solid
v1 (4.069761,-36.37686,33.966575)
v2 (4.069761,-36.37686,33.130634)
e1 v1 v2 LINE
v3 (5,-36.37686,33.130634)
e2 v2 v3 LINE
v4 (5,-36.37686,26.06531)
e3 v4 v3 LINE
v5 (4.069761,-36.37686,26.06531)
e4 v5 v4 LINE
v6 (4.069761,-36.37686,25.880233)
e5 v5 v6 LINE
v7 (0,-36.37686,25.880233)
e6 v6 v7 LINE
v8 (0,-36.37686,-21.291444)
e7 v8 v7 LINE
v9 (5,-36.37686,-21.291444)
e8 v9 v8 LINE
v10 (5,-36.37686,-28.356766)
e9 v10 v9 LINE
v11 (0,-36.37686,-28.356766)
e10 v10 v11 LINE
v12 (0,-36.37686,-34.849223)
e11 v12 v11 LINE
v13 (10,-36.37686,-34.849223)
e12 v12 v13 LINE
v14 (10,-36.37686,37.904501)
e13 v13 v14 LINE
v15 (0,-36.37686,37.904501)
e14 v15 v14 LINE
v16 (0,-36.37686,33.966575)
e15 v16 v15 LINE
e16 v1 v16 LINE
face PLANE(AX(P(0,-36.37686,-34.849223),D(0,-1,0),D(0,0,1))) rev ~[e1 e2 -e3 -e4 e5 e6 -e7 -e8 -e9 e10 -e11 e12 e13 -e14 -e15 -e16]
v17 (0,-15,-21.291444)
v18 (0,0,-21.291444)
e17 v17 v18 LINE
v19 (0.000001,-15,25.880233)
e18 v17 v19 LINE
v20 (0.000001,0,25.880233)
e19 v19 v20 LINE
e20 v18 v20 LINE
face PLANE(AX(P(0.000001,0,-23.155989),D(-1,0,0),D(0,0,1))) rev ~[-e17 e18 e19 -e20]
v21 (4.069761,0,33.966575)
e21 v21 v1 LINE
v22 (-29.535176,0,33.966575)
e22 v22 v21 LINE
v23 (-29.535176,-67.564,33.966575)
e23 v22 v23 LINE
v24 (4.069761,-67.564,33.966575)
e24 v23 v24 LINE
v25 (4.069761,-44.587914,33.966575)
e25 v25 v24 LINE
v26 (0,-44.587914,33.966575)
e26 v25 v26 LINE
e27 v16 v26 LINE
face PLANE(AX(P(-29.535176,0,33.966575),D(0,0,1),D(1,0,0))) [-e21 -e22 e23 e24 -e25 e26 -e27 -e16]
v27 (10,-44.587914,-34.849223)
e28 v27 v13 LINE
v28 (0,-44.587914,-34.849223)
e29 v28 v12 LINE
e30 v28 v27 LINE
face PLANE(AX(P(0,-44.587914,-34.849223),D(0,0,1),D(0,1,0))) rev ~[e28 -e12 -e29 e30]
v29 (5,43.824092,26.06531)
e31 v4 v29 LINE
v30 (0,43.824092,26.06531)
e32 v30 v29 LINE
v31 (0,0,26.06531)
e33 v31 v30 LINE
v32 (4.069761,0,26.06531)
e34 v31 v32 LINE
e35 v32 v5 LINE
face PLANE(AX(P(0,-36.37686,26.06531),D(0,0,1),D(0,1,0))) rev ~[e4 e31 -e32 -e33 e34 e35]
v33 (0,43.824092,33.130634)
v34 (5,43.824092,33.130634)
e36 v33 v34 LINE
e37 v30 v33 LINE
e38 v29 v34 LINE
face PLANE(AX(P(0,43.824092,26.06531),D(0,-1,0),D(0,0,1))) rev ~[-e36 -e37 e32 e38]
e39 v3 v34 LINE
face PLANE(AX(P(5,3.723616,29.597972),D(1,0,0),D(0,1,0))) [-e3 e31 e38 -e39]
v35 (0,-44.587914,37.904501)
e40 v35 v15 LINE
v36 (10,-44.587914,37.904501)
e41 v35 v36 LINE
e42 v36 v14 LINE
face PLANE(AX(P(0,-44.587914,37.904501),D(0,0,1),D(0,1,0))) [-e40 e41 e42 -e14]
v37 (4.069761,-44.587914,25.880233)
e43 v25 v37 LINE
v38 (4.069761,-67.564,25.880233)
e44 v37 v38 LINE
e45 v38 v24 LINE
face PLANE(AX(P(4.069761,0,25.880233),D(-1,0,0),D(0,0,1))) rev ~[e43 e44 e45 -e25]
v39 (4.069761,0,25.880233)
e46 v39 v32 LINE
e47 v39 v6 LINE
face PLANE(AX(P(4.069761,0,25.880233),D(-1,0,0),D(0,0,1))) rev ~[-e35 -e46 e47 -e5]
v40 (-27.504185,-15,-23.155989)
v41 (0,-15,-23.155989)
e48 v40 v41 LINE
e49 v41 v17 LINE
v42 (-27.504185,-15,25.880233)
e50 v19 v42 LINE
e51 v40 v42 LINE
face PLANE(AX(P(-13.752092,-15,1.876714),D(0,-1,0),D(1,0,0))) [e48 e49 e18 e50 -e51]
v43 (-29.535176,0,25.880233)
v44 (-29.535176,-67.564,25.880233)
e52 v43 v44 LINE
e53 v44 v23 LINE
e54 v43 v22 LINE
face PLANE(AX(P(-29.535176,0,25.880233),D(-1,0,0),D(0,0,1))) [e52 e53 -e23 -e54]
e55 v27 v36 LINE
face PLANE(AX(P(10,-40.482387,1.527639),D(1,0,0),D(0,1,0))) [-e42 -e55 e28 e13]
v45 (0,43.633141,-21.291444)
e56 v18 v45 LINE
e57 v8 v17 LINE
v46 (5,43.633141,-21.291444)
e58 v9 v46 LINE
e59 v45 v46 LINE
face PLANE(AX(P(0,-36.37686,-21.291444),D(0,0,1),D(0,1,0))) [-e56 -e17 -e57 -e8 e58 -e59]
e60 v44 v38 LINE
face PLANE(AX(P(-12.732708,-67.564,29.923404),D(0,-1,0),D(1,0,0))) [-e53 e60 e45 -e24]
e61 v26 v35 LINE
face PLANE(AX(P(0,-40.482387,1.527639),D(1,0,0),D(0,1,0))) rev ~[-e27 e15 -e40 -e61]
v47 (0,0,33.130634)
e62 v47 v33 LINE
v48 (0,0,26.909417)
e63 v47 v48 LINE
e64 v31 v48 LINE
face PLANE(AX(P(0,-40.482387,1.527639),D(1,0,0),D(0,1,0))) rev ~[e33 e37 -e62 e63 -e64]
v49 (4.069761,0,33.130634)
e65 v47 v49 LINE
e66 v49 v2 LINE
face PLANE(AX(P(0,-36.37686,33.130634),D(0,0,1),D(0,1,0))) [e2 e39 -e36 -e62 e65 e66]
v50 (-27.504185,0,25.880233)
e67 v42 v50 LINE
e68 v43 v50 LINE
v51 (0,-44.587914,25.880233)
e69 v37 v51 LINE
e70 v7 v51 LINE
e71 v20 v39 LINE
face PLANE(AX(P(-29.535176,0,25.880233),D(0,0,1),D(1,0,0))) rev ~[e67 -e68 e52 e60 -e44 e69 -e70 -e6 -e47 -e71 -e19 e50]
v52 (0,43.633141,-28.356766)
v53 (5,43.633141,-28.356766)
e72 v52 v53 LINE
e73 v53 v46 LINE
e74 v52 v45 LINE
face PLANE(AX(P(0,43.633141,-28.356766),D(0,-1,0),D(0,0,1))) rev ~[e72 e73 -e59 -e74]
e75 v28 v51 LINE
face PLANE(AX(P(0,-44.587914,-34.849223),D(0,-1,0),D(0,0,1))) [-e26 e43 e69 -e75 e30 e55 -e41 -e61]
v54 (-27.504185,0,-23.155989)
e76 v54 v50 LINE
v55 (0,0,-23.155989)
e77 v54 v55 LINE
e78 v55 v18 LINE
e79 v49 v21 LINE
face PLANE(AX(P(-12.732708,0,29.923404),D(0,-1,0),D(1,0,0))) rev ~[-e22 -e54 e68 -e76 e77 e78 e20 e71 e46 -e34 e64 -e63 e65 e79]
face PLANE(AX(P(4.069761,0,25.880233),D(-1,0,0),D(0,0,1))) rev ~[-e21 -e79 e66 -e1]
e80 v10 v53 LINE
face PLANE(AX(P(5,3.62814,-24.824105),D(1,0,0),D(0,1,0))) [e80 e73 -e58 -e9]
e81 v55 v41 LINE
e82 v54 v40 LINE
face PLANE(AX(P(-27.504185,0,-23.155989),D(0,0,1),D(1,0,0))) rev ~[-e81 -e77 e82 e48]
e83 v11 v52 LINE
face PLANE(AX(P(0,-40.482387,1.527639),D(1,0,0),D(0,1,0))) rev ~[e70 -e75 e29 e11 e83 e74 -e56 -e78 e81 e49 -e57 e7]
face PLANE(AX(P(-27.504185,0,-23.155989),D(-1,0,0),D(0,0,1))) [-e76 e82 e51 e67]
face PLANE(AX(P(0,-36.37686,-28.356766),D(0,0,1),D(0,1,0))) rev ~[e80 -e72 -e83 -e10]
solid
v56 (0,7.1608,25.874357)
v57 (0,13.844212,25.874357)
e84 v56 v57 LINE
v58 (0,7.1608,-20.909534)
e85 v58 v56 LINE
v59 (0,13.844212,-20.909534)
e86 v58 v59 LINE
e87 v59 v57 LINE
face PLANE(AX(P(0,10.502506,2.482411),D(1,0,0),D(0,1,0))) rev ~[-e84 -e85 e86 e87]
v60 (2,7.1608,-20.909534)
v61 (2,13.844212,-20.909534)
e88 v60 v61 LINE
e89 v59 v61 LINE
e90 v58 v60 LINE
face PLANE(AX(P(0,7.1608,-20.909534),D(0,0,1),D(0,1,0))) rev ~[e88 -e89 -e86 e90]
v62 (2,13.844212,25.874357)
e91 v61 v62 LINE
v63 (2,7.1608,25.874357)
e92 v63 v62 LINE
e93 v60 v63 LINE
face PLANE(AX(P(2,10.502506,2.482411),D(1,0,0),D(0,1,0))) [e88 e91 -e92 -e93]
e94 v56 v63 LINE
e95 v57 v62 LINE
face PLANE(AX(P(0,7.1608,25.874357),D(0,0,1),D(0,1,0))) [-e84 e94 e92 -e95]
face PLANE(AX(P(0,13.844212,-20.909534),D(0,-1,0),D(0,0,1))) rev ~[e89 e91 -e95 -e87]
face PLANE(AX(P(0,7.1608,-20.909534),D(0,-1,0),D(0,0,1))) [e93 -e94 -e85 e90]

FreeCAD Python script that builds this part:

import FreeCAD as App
import Part
import Sketcher

V = App.Vector
Q = App.Units.Quantity

doc = App.newDocument("Part")
params = doc.addObject("Spreadsheet::Sheet", "Params")
for row, (alias, value) in enumerate([
    ("pad1_length", "10 mm"),
    ("pad2_length", "5 mm"),
    ("sketch3_width", "80.010001 mm"),
    ("pad3_length", "5 mm"),
    ("pad4_length", "15 mm"),
    ("pad5_length", "67.564 mm"),
    ("pad6_length", "2 mm"),
], start=1):
    params.set(f"A{row}", alias)
    params.set(f"B{row}", "=" + value)
    params.setAlias(f"B{row}", alias)

body = doc.addObject("PartDesign::Body", "Body")

# Sketch on YZ plane
sketch1 = doc.addObject("Sketcher::SketchObject", "Sketch")
body.addObject(sketch1)
sketch1.AttachmentSupport = (doc.YZ_Plane, [""])
sketch1.MapMode = "FlatFace"
sketch1.addGeometry([
    Part.LineSegment(V(-44.587914, 37.904501, 0), V(-44.587914, -34.849223, 0)),
    Part.LineSegment(V(-44.587914, -34.849223, 0), V(-36.37686, -34.849223, 0)),
    Part.LineSegment(V(-36.37686, -34.849223, 0), V(-36.37686, 37.904501, 0)),
    Part.LineSegment(V(-36.37686, 37.904501, 0), V(-44.587914, 37.904501, 0)),
], False)
sketch1.addConstraint([
    Sketcher.Constraint("Coincident", 0, 2, 1, 1),
    Sketcher.Constraint("Coincident", 1, 2, 2, 1),
    Sketcher.Constraint("Coincident", 2, 2, 3, 1),
    Sketcher.Constraint("Coincident", 3, 2, 0, 1),
    Sketcher.Constraint("Vertical", 0),
    Sketcher.Constraint("Horizontal", 1),
    Sketcher.Constraint("Vertical", 2),
    Sketcher.Constraint("Horizontal", 3),
    Sketcher.Constraint("DistanceY", -1, 1, 2, 2, Q("37.904501 mm")),
    Sketcher.Constraint("DistanceX", 1, 1, 1, 2, Q("8.211054 mm")),
    Sketcher.Constraint("DistanceY", 0, 2, 0, 1, Q("72.753724 mm")),
    Sketcher.Constraint("DistanceX", 1, 2, -1, 1, Q("36.37686 mm")),
])
pad1 = doc.addObject("PartDesign::Pad", "Pad")
body.addObject(pad1)
pad1.Profile = sketch1
pad1.setExpression("Length", "Params.pad1_length")

# Sketch on YZ plane
sketch2 = doc.addObject("Sketcher::SketchObject", "Sketch001")
body.addObject(sketch2)
sketch2.AttachmentSupport = (doc.YZ_Plane, [""])
sketch2.MapMode = "FlatFace"
sketch2.addGeometry([
    Part.LineSegment(V(-36.37686, 33.130634, 0), V(-36.37686, 26.06531, 0)),
    Part.LineSegment(V(-36.37686, 26.06531, 0), V(43.824092, 26.06531, 0)),
    Part.LineSegment(V(43.824092, 26.06531, 0), V(43.824092, 33.130634, 0)),
    Part.LineSegment(V(43.824092, 33.130634, 0), V(-36.37686, 33.130634, 0)),
], False)
sketch2.addConstraint([
    Sketcher.Constraint("Coincident", 0, 2, 1, 1),
    Sketcher.Constraint("Coincident", 1, 2, 2, 1),
    Sketcher.Constraint("Coincident", 2, 2, 3, 1),
    Sketcher.Constraint("Coincident", 3, 2, 0, 1),
    Sketcher.Constraint("Vertical", 0),
    Sketcher.Constraint("Horizontal", 1),
    Sketcher.Constraint("Vertical", 2),
    Sketcher.Constraint("Horizontal", 3),
    Sketcher.Constraint("DistanceX", 1, 1, 1, 2, Q("80.200952 mm")),
    Sketcher.Constraint("DistanceY", 0, 2, 0, 1, Q("7.065325 mm")),
    Sketcher.Constraint("DistanceX", 0, 2, -1, 1, Q("36.37686 mm")),
    Sketcher.Constraint("DistanceY", -1, 1, 0, 2, Q("26.06531 mm")),
])
pad2 = doc.addObject("PartDesign::Pad", "Pad001")
body.addObject(pad2)
pad2.Profile = sketch2
pad2.setExpression("Length", "Params.pad2_length")

# Sketch on YZ plane
sketch3 = doc.addObject("Sketcher::SketchObject", "Sketch002")
body.addObject(sketch3)
sketch3.AttachmentSupport = (doc.YZ_Plane, [""])
sketch3.MapMode = "FlatFace"
sketch3.addGeometry([
    Part.LineSegment(V(-36.37686, -21.291444, 0), V(-36.37686, -28.356766, 0)),
    Part.LineSegment(V(-36.37686, -28.356766, 0), V(43.633141, -28.356766, 0)),
    Part.LineSegment(V(43.633141, -28.356766, 0), V(43.633141, -21.291444, 0)),
    Part.LineSegment(V(43.633141, -21.291444, 0), V(-36.37686, -21.291444, 0)),
], False)
sketch3.addConstraint([
    Sketcher.Constraint("Coincident", 0, 2, 1, 1),
    Sketcher.Constraint("Coincident", 1, 2, 2, 1),
    Sketcher.Constraint("Coincident", 2, 2, 3, 1),
    Sketcher.Constraint("Coincident", 3, 2, 0, 1),
    Sketcher.Constraint("Vertical", 0),
    Sketcher.Constraint("Horizontal", 1),
    Sketcher.Constraint("Vertical", 2),
    Sketcher.Constraint("Horizontal", 3),
    Sketcher.Constraint("DistanceX", 1, 1, 1, 2, Q("80.010001 mm")),
    Sketcher.Constraint("DistanceY", 0, 2, 0, 1, Q("7.065322 mm")),
    Sketcher.Constraint("DistanceX", 0, 2, -1, 1, Q("36.37686 mm")),
    Sketcher.Constraint("DistanceY", 0, 2, -1, 1, Q("28.356766 mm")),
])
sketch3.setExpression("Constraints[8]", "Params.sketch3_width")
pad3 = doc.addObject("PartDesign::Pad", "Pad002")
body.addObject(pad3)
pad3.Profile = sketch3
pad3.setExpression("Length", "Params.pad3_length")

# Sketch on XZ plane
sketch4 = doc.addObject("Sketcher::SketchObject", "Sketch003")
body.addObject(sketch4)
sketch4.AttachmentSupport = (doc.XZ_Plane, [""])
sketch4.MapMode = "FlatFace"
sketch4.addGeometry([
    Part.LineSegment(V(-27.504185, 26.909417, 0), V(-27.504185, -23.155989, 0)),
    Part.LineSegment(V(-27.504185, -23.155989, 0), V(0, -23.155989, 0)),
    Part.LineSegment(V(0, -23.155989, 0), V(0, 26.909417, 0)),
    Part.LineSegment(V(0, 26.909417, 0), V(-27.504185, 26.909417, 0)),
], False)
sketch4.addConstraint([
    Sketcher.Constraint("Coincident", 0, 2, 1, 1),
    Sketcher.Constraint("Coincident", 1, 2, 2, 1),
    Sketcher.Constraint("Coincident", 2, 2, 3, 1),
    Sketcher.Constraint("Coincident", 3, 2, 0, 1),
    Sketcher.Constraint("Vertical", 0),
    Sketcher.Constraint("Horizontal", 1),
    Sketcher.Constraint("Vertical", 2),
    Sketcher.Constraint("Horizontal", 3),
    Sketcher.Constraint("PointOnObject", 1, 2, -2),
    Sketcher.Constraint("DistanceX", 1, 1, 1, 2, Q("27.504185 mm")),
    Sketcher.Constraint("DistanceY", 0, 2, 0, 1, Q("50.065406 mm")),
    Sketcher.Constraint("DistanceY", 0, 2, -1, 1, Q("23.155989 mm")),
])
pad4 = doc.addObject("PartDesign::Pad", "Pad003")
body.addObject(pad4)
pad4.Profile = sketch4
pad4.setExpression("Length", "Params.pad4_length")

# Sketch on XZ plane
sketch5 = doc.addObject("Sketcher::SketchObject", "Sketch004")
body.addObject(sketch5)
sketch5.AttachmentSupport = (doc.XZ_Plane, [""])
sketch5.MapMode = "FlatFace"
sketch5.addGeometry([
    Part.LineSegment(V(-29.535176, 33.966575, 0), V(-29.535176, 25.880233, 0)),
    Part.LineSegment(V(-29.535176, 25.880233, 0), V(4.069761, 25.880233, 0)),
    Part.LineSegment(V(4.069761, 25.880233, 0), V(4.069761, 33.966575, 0)),
    Part.LineSegment(V(4.069761, 33.966575, 0), V(-29.535176, 33.966575, 0)),
], False)
sketch5.addConstraint([
    Sketcher.Constraint("Coincident", 0, 2, 1, 1),
    Sketcher.Constraint("Coincident", 1, 2, 2, 1),
    Sketcher.Constraint("Coincident", 2, 2, 3, 1),
    Sketcher.Constraint("Coincident", 3, 2, 0, 1),
    Sketcher.Constraint("Vertical", 0),
    Sketcher.Constraint("Horizontal", 1),
    Sketcher.Constraint("Vertical", 2),
    Sketcher.Constraint("Horizontal", 3),
    Sketcher.Constraint("DistanceY", 0, 2, 0, 1, Q("8.086341 mm")),
    Sketcher.Constraint("DistanceX", 1, 1, 1, 2, Q("33.604937 mm")),
    Sketcher.Constraint("DistanceX", -1, 1, 1, 2, Q("4.069761 mm")),
    Sketcher.Constraint("DistanceY", -1, 1, 0, 2, Q("25.880233 mm")),
])
pad5 = doc.addObject("PartDesign::Pad", "Pad004")
body.addObject(pad5)
pad5.Profile = sketch5
pad5.setExpression("Length", "Params.pad5_length")
body2 = doc.addObject("PartDesign::Body", "Body001")

# Sketch on YZ plane
sketch6 = doc.addObject("Sketcher::SketchObject", "Sketch005")
body2.addObject(sketch6)
sketch6.AttachmentSupport = (doc.getObject("YZ_Plane001"), [""])
sketch6.MapMode = "FlatFace"
sketch6.addGeometry([
    Part.LineSegment(V(7.1608, 25.874357, 0), V(7.1608, -20.909534, 0)),
    Part.LineSegment(V(7.1608, -20.909534, 0), V(13.844212, -20.909534, 0)),
    Part.LineSegment(V(13.844212, -20.909534, 0), V(13.844212, 25.874357, 0)),
    Part.LineSegment(V(13.844212, 25.874357, 0), V(7.1608, 25.874357, 0)),
], False)
sketch6.addConstraint([
    Sketcher.Constraint("Coincident", 0, 2, 1, 1),
    Sketcher.Constraint("Coincident", 1, 2, 2, 1),
    Sketcher.Constraint("Coincident", 2, 2, 3, 1),
    Sketcher.Constraint("Coincident", 3, 2, 0, 1),
    Sketcher.Constraint("Vertical", 0),
    Sketcher.Constraint("Horizontal", 1),
    Sketcher.Constraint("Vertical", 2),
    Sketcher.Constraint("Horizontal", 3),
    Sketcher.Constraint("DistanceY", 0, 2, 0, 1, Q("46.783891 mm")),
    Sketcher.Constraint("DistanceX", -1, 1, 0, 2, Q("7.1608 mm")),
    Sketcher.Constraint("DistanceX", 1, 1, 1, 2, Q("6.683413 mm")),
    Sketcher.Constraint("DistanceY", 0, 2, -1, 1, Q("20.909534 mm")),
])
pad6 = doc.addObject("PartDesign::Pad", "Pad005")
body2.addObject(pad6)
pad6.Profile = sketch6
pad6.setExpression("Length", "Params.pad6_length")

doc.recompute()
